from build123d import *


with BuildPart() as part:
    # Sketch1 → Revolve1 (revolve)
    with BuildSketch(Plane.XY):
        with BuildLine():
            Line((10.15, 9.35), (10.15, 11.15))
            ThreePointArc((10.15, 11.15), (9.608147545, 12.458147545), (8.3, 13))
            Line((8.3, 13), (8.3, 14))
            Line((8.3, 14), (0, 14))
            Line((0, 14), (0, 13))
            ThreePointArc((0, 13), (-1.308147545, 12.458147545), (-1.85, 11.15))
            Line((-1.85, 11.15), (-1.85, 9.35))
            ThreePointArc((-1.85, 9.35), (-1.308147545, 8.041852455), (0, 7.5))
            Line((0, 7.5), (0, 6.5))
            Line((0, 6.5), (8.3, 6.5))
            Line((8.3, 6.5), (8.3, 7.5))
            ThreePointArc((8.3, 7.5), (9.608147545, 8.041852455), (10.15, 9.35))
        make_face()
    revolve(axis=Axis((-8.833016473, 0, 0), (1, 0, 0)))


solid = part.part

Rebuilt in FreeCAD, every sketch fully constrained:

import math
import FreeCAD as App
import Part
import Sketcher
from FreeCAD import Vector
Q = App.Units.Quantity

doc = App.newDocument("Part")
body = doc.addObject("PartDesign::Body", "Body")

sketch1 = doc.addObject("Sketcher::SketchObject", "Sketch")
body.addObject(sketch1)
sketch1.AttachmentSupport = (doc.XY_Plane, [""])
sketch1.MapMode = "FlatFace"
sketch1.addGeometry([
    Part.LineSegment(Vector(10.15, 9.35, 0), Vector(10.15, 11.15, 0)),
    Part.ArcOfCircle(Part.Circle(Vector(8.3, 11.15, 0), Vector(0, 0, 1), 1.85), math.radians(0), math.radians(90)),
    Part.LineSegment(Vector(8.3, 13, 0), Vector(8.3, 14, 0)),
    Part.LineSegment(Vector(8.3, 14, 0), Vector(0, 14, 0)),
    Part.LineSegment(Vector(0, 14, 0), Vector(0, 13, 0)),
    Part.ArcOfCircle(Part.Circle(Vector(0, 11.15, 0), Vector(0, 0, 1), 1.85), math.radians(90), math.radians(180)),
    Part.LineSegment(Vector(-1.85, 11.15, 0), Vector(-1.85, 9.35, 0)),
    Part.ArcOfCircle(Part.Circle(Vector(0, 9.35, 0), Vector(0, 0, 1), 1.85), math.radians(-180), math.radians(-90)),
    Part.LineSegment(Vector(0, 7.5, 0), Vector(0, 6.5, 0)),
    Part.LineSegment(Vector(0, 6.5, 0), Vector(8.3, 6.5, 0)),
    Part.LineSegment(Vector(8.3, 6.5, 0), Vector(8.3, 7.5, 0)),
    Part.ArcOfCircle(Part.Circle(Vector(8.3, 9.35, 0), Vector(0, 0, 1), 1.85), math.radians(-90), math.radians(0)),
], False)
sketch1.addConstraint([
    Sketcher.Constraint("Tangent", 0, 2, 1, 1),
    Sketcher.Constraint("Coincident", 1, 2, 2, 1),
    Sketcher.Constraint("Coincident", 2, 2, 3, 1),
    Sketcher.Constraint("Coincident", 3, 2, 4, 1),
    Sketcher.Constraint("Coincident", 4, 2, 5, 1),
    Sketcher.Constraint("Tangent", 5, 2, 6, 1),
    Sketcher.Constraint("Tangent", 6, 2, 7, 1),
    Sketcher.Constraint("Coincident", 7, 2, 8, 1),
    Sketcher.Constraint("Coincident", 8, 2, 9, 1),
    Sketcher.Constraint("Coincident", 9, 2, 10, 1),
    Sketcher.Constraint("Coincident", 10, 2, 11, 1),
    Sketcher.Constraint("Tangent", 11, 2, 0, 1),
    Sketcher.Constraint("Vertical", 0),
    Sketcher.Constraint("Vertical", 2),
    Sketcher.Constraint("Horizontal", 3),
    Sketcher.Constraint("Vertical", 4),
    Sketcher.Constraint("Vertical", 6),
    Sketcher.Constraint("Vertical", 8),
    Sketcher.Constraint("Horizontal", 9),
    Sketcher.Constraint("Vertical", 10),
    Sketcher.Constraint("Equal", 1, 5),
    Sketcher.Constraint("Equal", 5, 7),
    Sketcher.Constraint("Equal", 7, 11),
    Sketcher.Constraint("PointOnObject", 5, 3, -2),
    Sketcher.Constraint("PointOnObject", 3, 2, -2),
    Sketcher.Constraint("PointOnObject", 7, 2, -2),
    Sketcher.Constraint("Horizontal", 1, 3, 5, 3),
    Sketcher.Constraint("Horizontal", 7, 3, 11, 3),
    Sketcher.Constraint("Vertical", 11, 3, 1, 2),
    Sketcher.Constraint("Vertical", 2, 2, 9, 2),
    Sketcher.Constraint("Equal", 4, 8),
    Sketcher.Constraint("DistanceY", 2, 1, 2, 2, Q("1 mm")),
    Sketcher.Constraint("Radius", 1, Q("1.85 mm")),
    Sketcher.Constraint("DistanceX", 3, 2, 3, 1, Q("8.3 mm")),
    Sketcher.Constraint("DistanceY", 0, 1, 0, 2, Q("1.8 mm")),
    Sketcher.Constraint("DistanceY", -1, 1, 1, 2, Q("13 mm")),
])
revolution = doc.addObject("PartDesign::Revolution", "Revolution")
body.addObject(revolution)
revolution.Profile = sketch1
revolution.ReferenceAxis = (sketch1, ["H_Axis"])
revolution.Angle = 360

doc.recompute()
